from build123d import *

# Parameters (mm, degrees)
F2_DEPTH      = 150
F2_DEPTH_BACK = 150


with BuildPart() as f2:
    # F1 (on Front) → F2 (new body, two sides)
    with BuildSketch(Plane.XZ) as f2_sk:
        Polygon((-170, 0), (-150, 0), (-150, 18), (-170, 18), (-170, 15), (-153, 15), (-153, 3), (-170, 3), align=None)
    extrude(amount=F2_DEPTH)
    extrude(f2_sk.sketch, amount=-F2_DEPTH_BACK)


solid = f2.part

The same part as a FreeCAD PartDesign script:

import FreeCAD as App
import Part
import Sketcher
from FreeCAD import Vector


def add_polygon(sketch, points):
    """Adds a closed chain of lines whose ends are joined by coincident constraints."""
    first, n = sketch.GeometryCount, len(points)
    for a, b in zip(points, points[1:] + points[:1]):
        sketch.addGeometry(Part.LineSegment(App.Vector(*a, 0), App.Vector(*b, 0)), False)
    for i in range(n):
        sketch.addConstraint(Sketcher.Constraint("Coincident", first + i, 2, first + (i + 1) % n, 1))

doc = App.newDocument("Part")
body = doc.addObject("PartDesign::Body", "Body")

# Sketch on XZ plane
sketch1 = body.newObject("Sketcher::SketchObject", "Sketch")
sketch1.AttachmentSupport = (doc.getObject("XZ_Plane"), [""])
sketch1.MapMode = "FlatFace"
add_polygon(sketch1, [(-170, 0), (-150, 0), (-150, 18), (-170, 18), (-170, 15), (-153, 15), (-153, 3), (-170, 3)])  # lines 0-7
sketch1.addConstraint([
    Sketcher.Constraint("Horizontal", 0),
    Sketcher.Constraint("Vertical", 1),
    Sketcher.Constraint("Horizontal", 2),
    Sketcher.Constraint("Vertical", 3),
    Sketcher.Constraint("Horizontal", 4),
    Sketcher.Constraint("Vertical", 5),
    Sketcher.Constraint("Horizontal", 6),
    Sketcher.Constraint("Vertical", 7),
    Sketcher.Constraint("PointOnObject", 0, 2, -1),
    Sketcher.Constraint("Vertical", 3, 2, 6, 2),
    Sketcher.Constraint("Equal", 3, 7),
    Sketcher.Constraint("DistanceX", 0, 1, 0, 2, 20.0),
    Sketcher.Constraint("DistanceX", 4, 1, 4, 2, 17.0),
    Sketcher.Constraint("DistanceY", 1, 1, 1, 2, 18.0),
    Sketcher.Constraint("DistanceY", 3, 2, 3, 1, 3.0),
    Sketcher.Constraint("DistanceX", 0, 2, -1, 1, 150.0),
])
pad1 = body.newObject("PartDesign::Pad", "Pad")
pad1.Profile = sketch1
pad1.Type = "TwoLengths"
pad1.Length = 150
pad1.Length2 = 150

doc.recompute()
